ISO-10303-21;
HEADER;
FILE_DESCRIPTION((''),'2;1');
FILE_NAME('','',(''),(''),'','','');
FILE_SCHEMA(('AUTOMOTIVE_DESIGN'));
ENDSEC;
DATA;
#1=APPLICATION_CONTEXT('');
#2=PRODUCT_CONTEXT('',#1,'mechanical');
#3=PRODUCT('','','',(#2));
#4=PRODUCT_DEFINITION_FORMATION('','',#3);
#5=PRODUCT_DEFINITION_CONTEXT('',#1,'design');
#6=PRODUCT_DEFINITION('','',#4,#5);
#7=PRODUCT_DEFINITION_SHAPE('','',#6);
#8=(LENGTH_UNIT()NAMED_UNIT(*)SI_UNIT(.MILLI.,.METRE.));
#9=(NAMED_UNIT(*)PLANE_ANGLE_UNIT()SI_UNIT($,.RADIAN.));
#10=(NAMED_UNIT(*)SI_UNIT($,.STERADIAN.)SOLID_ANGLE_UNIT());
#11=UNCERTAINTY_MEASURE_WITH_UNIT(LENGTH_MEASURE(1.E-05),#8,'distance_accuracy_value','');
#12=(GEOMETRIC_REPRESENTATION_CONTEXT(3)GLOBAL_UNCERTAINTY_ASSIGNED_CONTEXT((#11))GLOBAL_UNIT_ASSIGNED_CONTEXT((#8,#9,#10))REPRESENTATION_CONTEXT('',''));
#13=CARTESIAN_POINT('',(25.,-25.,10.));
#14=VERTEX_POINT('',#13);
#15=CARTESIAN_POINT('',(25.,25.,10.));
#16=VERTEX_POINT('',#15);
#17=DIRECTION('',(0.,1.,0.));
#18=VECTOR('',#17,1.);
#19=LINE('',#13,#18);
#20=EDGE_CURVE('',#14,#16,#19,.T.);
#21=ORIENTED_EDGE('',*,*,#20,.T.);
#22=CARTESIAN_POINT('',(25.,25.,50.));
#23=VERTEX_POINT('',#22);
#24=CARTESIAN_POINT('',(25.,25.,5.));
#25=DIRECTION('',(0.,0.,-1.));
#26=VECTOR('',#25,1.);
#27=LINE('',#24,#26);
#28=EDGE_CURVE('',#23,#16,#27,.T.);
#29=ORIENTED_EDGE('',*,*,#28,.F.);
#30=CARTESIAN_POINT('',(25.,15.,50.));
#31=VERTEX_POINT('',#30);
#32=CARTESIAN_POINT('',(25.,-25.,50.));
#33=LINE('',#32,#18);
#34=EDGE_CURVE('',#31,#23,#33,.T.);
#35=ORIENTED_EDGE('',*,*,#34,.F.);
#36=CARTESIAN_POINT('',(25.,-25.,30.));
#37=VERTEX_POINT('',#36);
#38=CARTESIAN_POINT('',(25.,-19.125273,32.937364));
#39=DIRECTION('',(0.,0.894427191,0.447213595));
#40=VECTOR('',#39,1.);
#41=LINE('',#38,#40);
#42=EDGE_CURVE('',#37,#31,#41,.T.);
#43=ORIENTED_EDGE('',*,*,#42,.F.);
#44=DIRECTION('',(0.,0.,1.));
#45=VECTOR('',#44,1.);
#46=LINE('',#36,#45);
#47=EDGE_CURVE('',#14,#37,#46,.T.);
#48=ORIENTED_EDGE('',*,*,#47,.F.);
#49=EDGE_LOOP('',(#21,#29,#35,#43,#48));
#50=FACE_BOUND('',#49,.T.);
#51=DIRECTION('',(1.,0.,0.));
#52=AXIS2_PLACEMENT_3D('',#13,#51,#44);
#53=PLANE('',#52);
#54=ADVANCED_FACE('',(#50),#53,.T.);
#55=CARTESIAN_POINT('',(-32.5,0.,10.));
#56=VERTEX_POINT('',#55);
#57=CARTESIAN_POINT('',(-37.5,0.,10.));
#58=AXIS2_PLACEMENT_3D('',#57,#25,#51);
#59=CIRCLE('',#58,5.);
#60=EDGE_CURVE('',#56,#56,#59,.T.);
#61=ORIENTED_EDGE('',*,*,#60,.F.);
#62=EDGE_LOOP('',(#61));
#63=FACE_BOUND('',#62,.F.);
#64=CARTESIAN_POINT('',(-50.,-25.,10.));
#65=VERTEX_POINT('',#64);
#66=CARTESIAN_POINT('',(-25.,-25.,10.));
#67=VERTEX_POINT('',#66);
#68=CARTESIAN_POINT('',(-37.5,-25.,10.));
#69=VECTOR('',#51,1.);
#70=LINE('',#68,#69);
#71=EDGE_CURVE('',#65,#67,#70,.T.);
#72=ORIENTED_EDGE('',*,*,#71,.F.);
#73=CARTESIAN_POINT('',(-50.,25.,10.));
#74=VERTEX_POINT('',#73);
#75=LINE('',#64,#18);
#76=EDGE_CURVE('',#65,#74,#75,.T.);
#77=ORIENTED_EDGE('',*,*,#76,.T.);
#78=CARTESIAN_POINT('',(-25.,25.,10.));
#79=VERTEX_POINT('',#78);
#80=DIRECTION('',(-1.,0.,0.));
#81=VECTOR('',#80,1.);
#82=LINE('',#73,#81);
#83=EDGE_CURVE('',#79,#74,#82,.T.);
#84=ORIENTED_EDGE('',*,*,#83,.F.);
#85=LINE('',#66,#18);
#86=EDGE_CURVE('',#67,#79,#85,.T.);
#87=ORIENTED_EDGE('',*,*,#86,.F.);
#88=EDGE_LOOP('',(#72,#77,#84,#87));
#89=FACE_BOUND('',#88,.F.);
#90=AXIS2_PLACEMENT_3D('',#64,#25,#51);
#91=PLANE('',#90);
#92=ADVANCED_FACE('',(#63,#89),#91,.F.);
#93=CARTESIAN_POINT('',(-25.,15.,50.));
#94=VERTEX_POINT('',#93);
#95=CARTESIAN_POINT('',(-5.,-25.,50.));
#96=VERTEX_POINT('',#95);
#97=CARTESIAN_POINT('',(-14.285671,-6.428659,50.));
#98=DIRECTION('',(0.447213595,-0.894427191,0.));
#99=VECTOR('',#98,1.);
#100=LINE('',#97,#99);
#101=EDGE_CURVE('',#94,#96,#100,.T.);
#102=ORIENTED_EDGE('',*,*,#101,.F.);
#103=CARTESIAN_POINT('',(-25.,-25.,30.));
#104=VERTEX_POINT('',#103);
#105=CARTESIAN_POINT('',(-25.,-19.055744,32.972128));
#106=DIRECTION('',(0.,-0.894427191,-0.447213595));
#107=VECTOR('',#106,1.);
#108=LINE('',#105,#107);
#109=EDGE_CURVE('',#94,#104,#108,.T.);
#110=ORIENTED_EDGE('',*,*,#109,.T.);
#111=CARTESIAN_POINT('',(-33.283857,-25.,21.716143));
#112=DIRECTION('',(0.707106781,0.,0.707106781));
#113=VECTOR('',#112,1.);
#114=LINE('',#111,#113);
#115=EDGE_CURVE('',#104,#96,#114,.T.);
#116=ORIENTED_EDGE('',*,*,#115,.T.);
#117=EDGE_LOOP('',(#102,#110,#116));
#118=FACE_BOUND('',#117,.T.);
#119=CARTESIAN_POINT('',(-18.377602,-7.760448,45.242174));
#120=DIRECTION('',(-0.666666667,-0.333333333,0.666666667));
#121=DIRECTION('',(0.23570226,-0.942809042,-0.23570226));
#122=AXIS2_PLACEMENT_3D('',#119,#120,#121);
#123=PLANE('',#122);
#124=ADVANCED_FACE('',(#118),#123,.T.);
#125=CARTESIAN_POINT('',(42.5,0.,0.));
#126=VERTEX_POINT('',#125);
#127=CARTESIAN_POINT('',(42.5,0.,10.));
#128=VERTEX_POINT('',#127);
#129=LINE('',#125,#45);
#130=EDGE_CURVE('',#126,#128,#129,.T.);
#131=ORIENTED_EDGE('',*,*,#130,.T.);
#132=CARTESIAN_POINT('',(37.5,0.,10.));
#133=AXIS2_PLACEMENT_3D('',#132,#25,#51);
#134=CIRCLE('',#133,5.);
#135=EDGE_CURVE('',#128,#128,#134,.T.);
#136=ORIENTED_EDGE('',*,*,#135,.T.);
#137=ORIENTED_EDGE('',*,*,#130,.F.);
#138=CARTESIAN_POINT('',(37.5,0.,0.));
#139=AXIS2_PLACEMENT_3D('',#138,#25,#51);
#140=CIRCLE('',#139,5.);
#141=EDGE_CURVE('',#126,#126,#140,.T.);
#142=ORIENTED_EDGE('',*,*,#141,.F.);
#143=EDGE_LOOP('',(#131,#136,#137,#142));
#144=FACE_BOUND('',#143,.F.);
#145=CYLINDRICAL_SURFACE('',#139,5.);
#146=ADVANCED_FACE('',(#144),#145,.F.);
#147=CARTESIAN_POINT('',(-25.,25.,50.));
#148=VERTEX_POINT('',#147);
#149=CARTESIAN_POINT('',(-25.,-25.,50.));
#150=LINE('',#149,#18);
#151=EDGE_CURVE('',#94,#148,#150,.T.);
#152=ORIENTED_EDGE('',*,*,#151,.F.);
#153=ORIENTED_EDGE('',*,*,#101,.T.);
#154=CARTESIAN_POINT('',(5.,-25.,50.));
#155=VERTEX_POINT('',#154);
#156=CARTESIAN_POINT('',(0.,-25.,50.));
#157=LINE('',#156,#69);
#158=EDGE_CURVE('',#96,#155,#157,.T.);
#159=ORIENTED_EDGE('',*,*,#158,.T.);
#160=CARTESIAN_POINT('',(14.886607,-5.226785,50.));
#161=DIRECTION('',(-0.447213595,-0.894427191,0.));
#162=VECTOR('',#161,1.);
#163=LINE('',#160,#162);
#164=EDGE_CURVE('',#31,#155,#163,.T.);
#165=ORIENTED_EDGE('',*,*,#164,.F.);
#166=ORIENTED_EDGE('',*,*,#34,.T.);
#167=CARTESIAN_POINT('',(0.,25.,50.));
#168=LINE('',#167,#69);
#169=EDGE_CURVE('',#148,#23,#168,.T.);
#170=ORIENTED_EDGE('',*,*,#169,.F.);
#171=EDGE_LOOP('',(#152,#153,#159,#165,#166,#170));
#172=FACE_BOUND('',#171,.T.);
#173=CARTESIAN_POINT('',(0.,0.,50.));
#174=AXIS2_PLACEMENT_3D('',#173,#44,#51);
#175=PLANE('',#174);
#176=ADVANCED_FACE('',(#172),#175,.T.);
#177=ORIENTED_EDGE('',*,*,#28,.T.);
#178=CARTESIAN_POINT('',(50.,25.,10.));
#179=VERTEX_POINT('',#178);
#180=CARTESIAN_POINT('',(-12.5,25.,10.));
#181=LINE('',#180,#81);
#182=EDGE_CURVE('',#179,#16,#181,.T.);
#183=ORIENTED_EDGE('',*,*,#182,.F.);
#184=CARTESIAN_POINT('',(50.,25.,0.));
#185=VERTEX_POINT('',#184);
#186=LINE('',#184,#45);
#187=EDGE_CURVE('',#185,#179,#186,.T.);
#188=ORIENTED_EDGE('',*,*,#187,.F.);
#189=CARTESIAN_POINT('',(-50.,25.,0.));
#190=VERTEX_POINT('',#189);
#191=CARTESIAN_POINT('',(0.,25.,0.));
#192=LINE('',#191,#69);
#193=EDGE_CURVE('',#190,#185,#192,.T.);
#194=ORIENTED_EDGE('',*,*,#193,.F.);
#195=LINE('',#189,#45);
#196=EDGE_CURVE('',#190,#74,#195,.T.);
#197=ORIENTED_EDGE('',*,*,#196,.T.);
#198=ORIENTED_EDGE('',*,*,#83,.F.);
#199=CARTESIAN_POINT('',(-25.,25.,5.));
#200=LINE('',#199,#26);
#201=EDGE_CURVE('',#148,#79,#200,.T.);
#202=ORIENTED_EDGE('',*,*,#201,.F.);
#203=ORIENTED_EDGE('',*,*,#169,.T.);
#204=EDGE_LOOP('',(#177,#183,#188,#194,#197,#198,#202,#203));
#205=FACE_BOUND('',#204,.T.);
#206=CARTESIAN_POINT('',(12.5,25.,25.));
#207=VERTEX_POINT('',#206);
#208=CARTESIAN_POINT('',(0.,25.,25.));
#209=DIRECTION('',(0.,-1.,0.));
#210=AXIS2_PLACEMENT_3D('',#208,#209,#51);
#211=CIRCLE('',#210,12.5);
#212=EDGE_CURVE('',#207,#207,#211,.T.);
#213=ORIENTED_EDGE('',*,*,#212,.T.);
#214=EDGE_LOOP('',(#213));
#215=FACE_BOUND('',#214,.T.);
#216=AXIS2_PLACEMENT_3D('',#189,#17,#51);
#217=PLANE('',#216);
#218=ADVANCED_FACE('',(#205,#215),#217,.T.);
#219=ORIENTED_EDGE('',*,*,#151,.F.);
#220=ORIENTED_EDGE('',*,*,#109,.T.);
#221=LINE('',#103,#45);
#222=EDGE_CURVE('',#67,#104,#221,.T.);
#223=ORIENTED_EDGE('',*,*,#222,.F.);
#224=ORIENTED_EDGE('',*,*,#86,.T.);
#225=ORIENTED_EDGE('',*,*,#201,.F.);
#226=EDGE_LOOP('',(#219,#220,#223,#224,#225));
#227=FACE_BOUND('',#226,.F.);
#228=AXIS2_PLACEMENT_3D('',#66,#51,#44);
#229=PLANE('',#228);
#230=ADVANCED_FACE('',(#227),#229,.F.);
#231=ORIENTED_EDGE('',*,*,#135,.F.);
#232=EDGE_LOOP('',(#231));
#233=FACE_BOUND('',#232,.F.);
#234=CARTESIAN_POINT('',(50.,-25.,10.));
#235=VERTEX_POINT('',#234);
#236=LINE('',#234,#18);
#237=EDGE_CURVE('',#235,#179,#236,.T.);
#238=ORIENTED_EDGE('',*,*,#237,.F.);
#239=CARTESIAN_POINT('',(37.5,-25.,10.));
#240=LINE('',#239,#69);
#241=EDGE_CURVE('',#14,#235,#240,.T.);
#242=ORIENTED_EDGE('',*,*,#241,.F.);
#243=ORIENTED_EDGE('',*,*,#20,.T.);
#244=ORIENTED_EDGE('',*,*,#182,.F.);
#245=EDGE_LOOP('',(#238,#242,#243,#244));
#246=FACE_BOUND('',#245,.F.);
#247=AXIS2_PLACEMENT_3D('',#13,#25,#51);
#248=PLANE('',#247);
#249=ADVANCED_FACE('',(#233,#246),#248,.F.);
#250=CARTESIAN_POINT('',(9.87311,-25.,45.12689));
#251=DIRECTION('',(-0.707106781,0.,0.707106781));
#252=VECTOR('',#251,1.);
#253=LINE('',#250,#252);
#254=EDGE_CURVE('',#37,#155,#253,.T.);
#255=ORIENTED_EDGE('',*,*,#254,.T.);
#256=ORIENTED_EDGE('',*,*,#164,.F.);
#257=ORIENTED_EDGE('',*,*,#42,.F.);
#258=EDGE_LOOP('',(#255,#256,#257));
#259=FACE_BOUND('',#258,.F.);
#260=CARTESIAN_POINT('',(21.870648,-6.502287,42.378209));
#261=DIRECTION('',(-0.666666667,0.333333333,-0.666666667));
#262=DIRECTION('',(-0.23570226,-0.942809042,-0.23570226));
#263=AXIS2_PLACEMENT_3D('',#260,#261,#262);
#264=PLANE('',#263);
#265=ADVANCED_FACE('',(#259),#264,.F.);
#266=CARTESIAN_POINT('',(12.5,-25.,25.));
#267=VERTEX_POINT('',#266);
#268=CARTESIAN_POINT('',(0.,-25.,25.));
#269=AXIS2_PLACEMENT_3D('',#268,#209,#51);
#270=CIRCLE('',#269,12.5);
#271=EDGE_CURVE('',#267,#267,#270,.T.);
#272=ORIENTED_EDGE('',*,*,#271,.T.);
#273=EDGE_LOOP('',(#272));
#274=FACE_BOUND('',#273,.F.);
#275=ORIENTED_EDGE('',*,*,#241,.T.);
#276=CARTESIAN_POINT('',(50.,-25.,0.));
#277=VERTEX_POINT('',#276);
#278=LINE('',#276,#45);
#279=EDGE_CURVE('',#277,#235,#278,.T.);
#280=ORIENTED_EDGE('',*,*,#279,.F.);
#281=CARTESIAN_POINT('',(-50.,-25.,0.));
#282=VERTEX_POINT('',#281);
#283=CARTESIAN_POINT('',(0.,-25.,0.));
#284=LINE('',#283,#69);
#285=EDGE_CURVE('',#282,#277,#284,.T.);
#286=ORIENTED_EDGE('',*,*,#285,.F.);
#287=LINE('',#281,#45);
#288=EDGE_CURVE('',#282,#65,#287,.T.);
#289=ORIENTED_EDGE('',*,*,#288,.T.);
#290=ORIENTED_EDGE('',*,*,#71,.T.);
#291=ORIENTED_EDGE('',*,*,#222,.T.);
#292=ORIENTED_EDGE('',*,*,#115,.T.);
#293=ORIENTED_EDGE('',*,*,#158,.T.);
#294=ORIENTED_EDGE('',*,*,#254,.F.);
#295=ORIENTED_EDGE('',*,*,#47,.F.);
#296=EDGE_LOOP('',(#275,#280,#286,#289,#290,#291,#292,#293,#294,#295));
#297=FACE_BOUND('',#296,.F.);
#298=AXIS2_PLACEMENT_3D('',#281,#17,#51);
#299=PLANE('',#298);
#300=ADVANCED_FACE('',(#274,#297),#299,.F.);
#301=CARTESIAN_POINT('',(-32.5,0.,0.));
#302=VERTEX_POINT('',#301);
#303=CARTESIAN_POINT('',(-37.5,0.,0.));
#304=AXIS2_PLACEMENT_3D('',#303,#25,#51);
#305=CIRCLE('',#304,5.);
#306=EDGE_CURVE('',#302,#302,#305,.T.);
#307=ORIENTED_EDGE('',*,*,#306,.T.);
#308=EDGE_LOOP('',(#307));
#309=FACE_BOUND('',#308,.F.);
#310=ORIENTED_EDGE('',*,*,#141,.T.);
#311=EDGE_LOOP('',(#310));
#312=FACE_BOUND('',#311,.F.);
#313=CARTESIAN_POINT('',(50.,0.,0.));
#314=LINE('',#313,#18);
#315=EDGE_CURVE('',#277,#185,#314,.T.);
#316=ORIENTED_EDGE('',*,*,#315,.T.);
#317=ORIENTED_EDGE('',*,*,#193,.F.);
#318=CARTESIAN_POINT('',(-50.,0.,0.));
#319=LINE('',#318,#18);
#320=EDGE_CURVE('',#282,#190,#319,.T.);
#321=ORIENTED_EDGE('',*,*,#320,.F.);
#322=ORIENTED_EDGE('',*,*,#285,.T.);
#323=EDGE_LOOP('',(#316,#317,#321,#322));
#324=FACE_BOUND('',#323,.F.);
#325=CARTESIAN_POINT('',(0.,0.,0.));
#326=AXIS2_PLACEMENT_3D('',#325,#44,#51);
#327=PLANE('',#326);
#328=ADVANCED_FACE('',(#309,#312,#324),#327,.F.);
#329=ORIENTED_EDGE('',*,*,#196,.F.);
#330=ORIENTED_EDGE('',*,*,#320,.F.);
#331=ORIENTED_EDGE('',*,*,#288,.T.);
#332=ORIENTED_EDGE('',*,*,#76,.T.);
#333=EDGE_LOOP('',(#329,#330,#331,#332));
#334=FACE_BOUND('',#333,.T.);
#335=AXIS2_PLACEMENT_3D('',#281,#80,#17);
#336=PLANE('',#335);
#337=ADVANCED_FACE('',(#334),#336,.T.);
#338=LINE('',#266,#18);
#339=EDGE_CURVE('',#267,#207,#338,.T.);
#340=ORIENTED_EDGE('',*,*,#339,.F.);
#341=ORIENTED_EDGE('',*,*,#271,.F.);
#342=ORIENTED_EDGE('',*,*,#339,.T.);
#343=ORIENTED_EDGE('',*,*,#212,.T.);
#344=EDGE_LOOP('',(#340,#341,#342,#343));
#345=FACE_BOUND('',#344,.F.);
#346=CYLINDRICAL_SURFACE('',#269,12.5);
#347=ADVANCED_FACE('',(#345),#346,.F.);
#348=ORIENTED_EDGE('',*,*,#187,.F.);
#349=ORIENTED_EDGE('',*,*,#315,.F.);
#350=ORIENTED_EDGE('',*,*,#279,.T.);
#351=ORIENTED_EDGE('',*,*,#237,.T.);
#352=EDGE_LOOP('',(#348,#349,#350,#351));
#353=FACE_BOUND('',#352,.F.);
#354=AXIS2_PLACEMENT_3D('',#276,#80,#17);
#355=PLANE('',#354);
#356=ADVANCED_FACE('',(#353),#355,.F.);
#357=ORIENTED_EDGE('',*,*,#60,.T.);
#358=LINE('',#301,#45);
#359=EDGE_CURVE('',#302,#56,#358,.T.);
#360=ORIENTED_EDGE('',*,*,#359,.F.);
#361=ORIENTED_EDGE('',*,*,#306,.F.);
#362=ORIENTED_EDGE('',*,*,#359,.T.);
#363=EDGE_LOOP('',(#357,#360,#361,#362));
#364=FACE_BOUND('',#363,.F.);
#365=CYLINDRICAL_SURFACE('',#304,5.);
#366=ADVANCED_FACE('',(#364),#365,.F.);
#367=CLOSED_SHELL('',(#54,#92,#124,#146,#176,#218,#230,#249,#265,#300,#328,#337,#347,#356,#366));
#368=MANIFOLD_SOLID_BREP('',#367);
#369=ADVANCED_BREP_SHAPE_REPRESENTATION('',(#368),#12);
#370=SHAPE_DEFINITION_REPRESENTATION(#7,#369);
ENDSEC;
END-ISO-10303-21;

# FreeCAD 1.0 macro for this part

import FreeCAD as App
import Part
import Sketcher
Q = App.Units.Quantity

doc = App.newDocument("Part")
params = doc.addObject("Spreadsheet::Sheet", "Params")
for row, (alias, value) in enumerate([
    ("sketch1_width", "100 mm"),
    ("sketch1_height", "50 mm"),
    ("pad1_length", "50 mm"),
    ("sketch2_diameter", "25 mm"),
    ("sketch3_width", "25 mm"),
    ("sketch3_height", "40 mm"),
    ("sketch4_diameter", "10 mm"),
    ("pocket4_length", "13.333333 mm"),
    ("pocket5_length", "40 mm"),
], start=1):
    params.set(f"A{row}", alias)
    params.set(f"B{row}", "=" + value)
    params.setAlias(f"B{row}", alias)

body = doc.addObject("PartDesign::Body", "Body")

sketch1 = body.newObject("Sketcher::SketchObject", "Sketch")
sketch1.AttachmentSupport = (doc.getObject("XY_Plane"), [""])
sketch1.MapMode = "FlatFace"
sketch1.addGeometry(Part.LineSegment(App.Vector(-50, 25, 0), App.Vector(-50, -25, 0)), False)
sketch1.addGeometry(Part.LineSegment(App.Vector(-50, -25, 0), App.Vector(50, -25, 0)), False)
sketch1.addGeometry(Part.LineSegment(App.Vector(50, -25, 0), App.Vector(50, 25, 0)), False)
sketch1.addGeometry(Part.LineSegment(App.Vector(50, 25, 0), App.Vector(-50, 25, 0)), False)
sketch1.addConstraint(Sketcher.Constraint("Coincident", 0, 2, 1, 1))
sketch1.addConstraint(Sketcher.Constraint("Coincident", 1, 2, 2, 1))
sketch1.addConstraint(Sketcher.Constraint("Coincident", 2, 2, 3, 1))
sketch1.addConstraint(Sketcher.Constraint("Coincident", 3, 2, 0, 1))
sketch1.addConstraint(Sketcher.Constraint("Vertical", 0))
sketch1.addConstraint(Sketcher.Constraint("Horizontal", 1))
sketch1.addConstraint(Sketcher.Constraint("Vertical", 2))
sketch1.addConstraint(Sketcher.Constraint("Horizontal", 3))
sketch1.addConstraint(Sketcher.Constraint("Symmetric", 0, 2, 2, 2, -1, 1))
sketch1.addConstraint(Sketcher.Constraint("DistanceX", 1, 1, 1, 2, Q("100 mm")))
sketch1.addConstraint(Sketcher.Constraint("DistanceY", 0, 2, 0, 1, Q("50 mm")))
sketch1.setExpression("Constraints[9]", "Params.sketch1_width")
sketch1.setExpression("Constraints[10]", "Params.sketch1_height")
pad1 = body.newObject("PartDesign::Pad", "Pad")
pad1.Profile = sketch1
pad1.setExpression("Length", "Params.pad1_length")

sketch2 = body.newObject("Sketcher::SketchObject", "Sketch001")
sketch2.AttachmentSupport = (doc.getObject("XZ_Plane"), [""])
sketch2.MapMode = "FlatFace"
sketch2.AttachmentOffset = App.Placement(App.Vector(0, 0, 25), App.Rotation())
sketch2.addGeometry(Part.Circle(App.Vector(0, 25, 0), App.Vector(0, 0, 1), 12), False)
sketch2.addConstraint(Sketcher.Constraint("PointOnObject", 0, 3, -2))
sketch2.addConstraint(Sketcher.Constraint("Diameter", 0, Q("25 mm")))
sketch2.addConstraint(Sketcher.Constraint("DistanceY", -1, 1, 0, 3, Q("25 mm")))
sketch2.setExpression("Constraints[1]", "Params.sketch2_diameter")
pocket1 = body.newObject("PartDesign::Pocket", "Pocket")
pocket1.Profile = sketch2
pocket1.Type = "ThroughAll"

sketch3 = body.newObject("Sketcher::SketchObject", "Sketch002")
sketch3.AttachmentSupport = (doc.getObject("XZ_Plane"), [""])
sketch3.MapMode = "FlatFace"
sketch3.AttachmentOffset = App.Placement(App.Vector(0, 0, 25), App.Rotation())
sketch3.addGeometry(Part.LineSegment(App.Vector(-50, 50, 0), App.Vector(-50, 10, 0)), False)
sketch3.addGeometry(Part.LineSegment(App.Vector(-50, 10, 0), App.Vector(-25, 10, 0)), False)
sketch3.addGeometry(Part.LineSegment(App.Vector(-25, 10, 0), App.Vector(-25, 50, 0)), False)
sketch3.addGeometry(Part.LineSegment(App.Vector(-25, 50, 0), App.Vector(-50, 50, 0)), False)
sketch3.addGeometry(Part.LineSegment(App.Vector(25, 50, 0), App.Vector(25, 10, 0)), False)
sketch3.addGeometry(Part.LineSegment(App.Vector(25, 10, 0), App.Vector(50, 10, 0)), False)
sketch3.addGeometry(Part.LineSegment(App.Vector(50, 10, 0), App.Vector(50, 50, 0)), False)
sketch3.addGeometry(Part.LineSegment(App.Vector(50, 50, 0), App.Vector(25, 50, 0)), False)
sketch3.addConstraint(Sketcher.Constraint("Coincident", 0, 2, 1, 1))
sketch3.addConstraint(Sketcher.Constraint("Coincident", 1, 2, 2, 1))
sketch3.addConstraint(Sketcher.Constraint("Coincident", 2, 2, 3, 1))
sketch3.addConstraint(Sketcher.Constraint("Coincident", 3, 2, 0, 1))
sketch3.addConstraint(Sketcher.Constraint("Coincident", 4, 2, 5, 1))
sketch3.addConstraint(Sketcher.Constraint("Coincident", 5, 2, 6, 1))
sketch3.addConstraint(Sketcher.Constraint("Coincident", 6, 2, 7, 1))
sketch3.addConstraint(Sketcher.Constraint("Coincident", 7, 2, 4, 1))
sketch3.addConstraint(Sketcher.Constraint("Vertical", 0))
sketch3.addConstraint(Sketcher.Constraint("Horizontal", 1))
sketch3.addConstraint(Sketcher.Constraint("Vertical", 2))
sketch3.addConstraint(Sketcher.Constraint("Horizontal", 3))
sketch3.addConstraint(Sketcher.Constraint("Vertical", 4))
sketch3.addConstraint(Sketcher.Constraint("Horizontal", 5))
sketch3.addConstraint(Sketcher.Constraint("Vertical", 6))
sketch3.addConstraint(Sketcher.Constraint("Horizontal", 7))
sketch3.addConstraint(Sketcher.Constraint("Symmetric", 1, 2, 4, 2, -2))
sketch3.addConstraint(Sketcher.Constraint("Symmetric", 3, 2, 6, 2, -2))
sketch3.addConstraint(Sketcher.Constraint("DistanceX", 1, 1, 1, 2, Q("25 mm")))
sketch3.addConstraint(Sketcher.Constraint("DistanceY", 0, 2, 0, 1, Q("40 mm")))
sketch3.addConstraint(Sketcher.Constraint("DistanceX", 0, 2, -1, 1, Q("50 mm")))
sketch3.addConstraint(Sketcher.Constraint("DistanceY", -1, 1, 0, 2, Q("10 mm")))
sketch3.setExpression("Constraints[18]", "Params.sketch3_width")
sketch3.setExpression("Constraints[19]", "Params.sketch3_height")
pocket2 = body.newObject("PartDesign::Pocket", "Pocket001")
pocket2.Profile = sketch3
pocket2.Type = "ThroughAll"

sketch4 = body.newObject("Sketcher::SketchObject", "Sketch003")
sketch4.AttachmentSupport = (doc.getObject("XY_Plane"), [""])
sketch4.MapMode = "FlatFace"
sketch4.addGeometry(Part.Circle(App.Vector(-38, 0, 0), App.Vector(0, 0, 1), 5), False)
sketch4.addGeometry(Part.Circle(App.Vector(38, 0, 0), App.Vector(0, 0, 1), 5), False)
sketch4.addConstraint(Sketcher.Constraint("Equal", 0, 1))
sketch4.addConstraint(Sketcher.Constraint("Symmetric", 0, 3, 1, 3, -1, 1))
sketch4.addConstraint(Sketcher.Constraint("PointOnObject", 0, 3, -1))
sketch4.addConstraint(Sketcher.Constraint("Diameter", 0, Q("10 mm")))
sketch4.addConstraint(Sketcher.Constraint("DistanceX", 0, 3, 1, 3, Q("75 mm")))
sketch4.setExpression("Constraints[3]", "Params.sketch4_diameter")
pocket3 = body.newObject("PartDesign::Pocket", "Pocket002")
pocket3.Profile = sketch4
pocket3.Type = "ThroughAll"
pocket3.Reversed = True

sketch5 = body.newObject("Sketcher::SketchObject", "Sketch004")
sketch5.Placement = App.Placement(App.Vector(38.888889, -19.444444, 38.888889), App.Rotation(App.Vector(-0.23570226, -0.942809042, -0.23570226), App.Vector(-0.707106782, 0, 0.707106782), App.Vector(-0.666666667, 0.333333333, -0.666666667), "ZXY"))
sketch5.addGeometry(Part.LineSegment(App.Vector(-41, 47, 0), App.Vector(-41, -18, 0)), False)
sketch5.addGeometry(Part.LineSegment(App.Vector(-41, -18, 0), App.Vector(23, -18, 0)), False)
sketch5.addGeometry(Part.LineSegment(App.Vector(23, -18, 0), App.Vector(23, 47, 0)), False)
sketch5.addGeometry(Part.LineSegment(App.Vector(23, 47, 0), App.Vector(-41, 47, 0)), False)
sketch5.addConstraint(Sketcher.Constraint("Coincident", 0, 2, 1, 1))
sketch5.addConstraint(Sketcher.Constraint("Coincident", 1, 2, 2, 1))
sketch5.addConstraint(Sketcher.Constraint("Coincident", 2, 2, 3, 1))
sketch5.addConstraint(Sketcher.Constraint("Coincident", 3, 2, 0, 1))
sketch5.addConstraint(Sketcher.Constraint("Vertical", 0))
sketch5.addConstraint(Sketcher.Constraint("Horizontal", 1))
sketch5.addConstraint(Sketcher.Constraint("Vertical", 2))
sketch5.addConstraint(Sketcher.Constraint("Horizontal", 3))
sketch5.addConstraint(Sketcher.Constraint("DistanceX", 1, 1, 1, 2, Q("63.288318 mm")))
sketch5.addConstraint(Sketcher.Constraint("DistanceY", 0, 2, 0, 1, Q("65.731891 mm")))
sketch5.addConstraint(Sketcher.Constraint("DistanceY", 0, 2, -1, 1, Q("18.36491 mm")))
sketch5.addConstraint(Sketcher.Constraint("DistanceX", 0, 2, -1, 1, Q("40.657345 mm")))
pocket4 = body.newObject("PartDesign::Pocket", "Pocket003")
pocket4.Profile = sketch5
pocket4.setExpression("Length", "Params.pocket4_length")
pocket4.Reversed = True

sketch6 = body.newObject("Sketcher::SketchObject", "Sketch005")
sketch6.Placement = App.Placement(App.Vector(-56.666667, -28.333333, 56.666667), App.Rotation(App.Vector(0.23570226, -0.942809042, -0.23570226), App.Vector(0.707106782, 0, 0.707106782), App.Vector(-0.666666667, -0.333333333, 0.666666667), "ZXY"))
sketch6.addGeometry(Part.LineSegment(App.Vector(-43, 50, 0), App.Vector(-43, -12, 0)), False)
sketch6.addGeometry(Part.LineSegment(App.Vector(-43, -12, 0), App.Vector(27, -12, 0)), False)
sketch6.addGeometry(Part.LineSegment(App.Vector(27, -12, 0), App.Vector(27, 50, 0)), False)
sketch6.addGeometry(Part.LineSegment(App.Vector(27, 50, 0), App.Vector(-43, 50, 0)), False)
sketch6.addConstraint(Sketcher.Constraint("Coincident", 0, 2, 1, 1))
sketch6.addConstraint(Sketcher.Constraint("Coincident", 1, 2, 2, 1))
sketch6.addConstraint(Sketcher.Constraint("Coincident", 2, 2, 3, 1))
sketch6.addConstraint(Sketcher.Constraint("Coincident", 3, 2, 0, 1))
sketch6.addConstraint(Sketcher.Constraint("Vertical", 0))
sketch6.addConstraint(Sketcher.Constraint("Horizontal", 1))
sketch6.addConstraint(Sketcher.Constraint("Vertical", 2))
sketch6.addConstraint(Sketcher.Constraint("Horizontal", 3))
sketch6.addConstraint(Sketcher.Constraint("DistanceY", 0, 2, 0, 1, Q("62.670928 mm")))
sketch6.addConstraint(Sketcher.Constraint("DistanceX", 1, 1, 1, 2, Q("70.068155 mm")))
sketch6.addConstraint(Sketcher.Constraint("DistanceX", 0, 2, -1, 1, Q("42.712782 mm")))
sketch6.addConstraint(Sketcher.Constraint("DistanceY", 0, 2, -1, 1, Q("12.339343 mm")))
pocket5 = body.newObject("PartDesign::Pocket", "Pocket004")
pocket5.Profile = sketch6
pocket5.setExpression("Length", "Params.pocket5_length")

doc.recompute()
